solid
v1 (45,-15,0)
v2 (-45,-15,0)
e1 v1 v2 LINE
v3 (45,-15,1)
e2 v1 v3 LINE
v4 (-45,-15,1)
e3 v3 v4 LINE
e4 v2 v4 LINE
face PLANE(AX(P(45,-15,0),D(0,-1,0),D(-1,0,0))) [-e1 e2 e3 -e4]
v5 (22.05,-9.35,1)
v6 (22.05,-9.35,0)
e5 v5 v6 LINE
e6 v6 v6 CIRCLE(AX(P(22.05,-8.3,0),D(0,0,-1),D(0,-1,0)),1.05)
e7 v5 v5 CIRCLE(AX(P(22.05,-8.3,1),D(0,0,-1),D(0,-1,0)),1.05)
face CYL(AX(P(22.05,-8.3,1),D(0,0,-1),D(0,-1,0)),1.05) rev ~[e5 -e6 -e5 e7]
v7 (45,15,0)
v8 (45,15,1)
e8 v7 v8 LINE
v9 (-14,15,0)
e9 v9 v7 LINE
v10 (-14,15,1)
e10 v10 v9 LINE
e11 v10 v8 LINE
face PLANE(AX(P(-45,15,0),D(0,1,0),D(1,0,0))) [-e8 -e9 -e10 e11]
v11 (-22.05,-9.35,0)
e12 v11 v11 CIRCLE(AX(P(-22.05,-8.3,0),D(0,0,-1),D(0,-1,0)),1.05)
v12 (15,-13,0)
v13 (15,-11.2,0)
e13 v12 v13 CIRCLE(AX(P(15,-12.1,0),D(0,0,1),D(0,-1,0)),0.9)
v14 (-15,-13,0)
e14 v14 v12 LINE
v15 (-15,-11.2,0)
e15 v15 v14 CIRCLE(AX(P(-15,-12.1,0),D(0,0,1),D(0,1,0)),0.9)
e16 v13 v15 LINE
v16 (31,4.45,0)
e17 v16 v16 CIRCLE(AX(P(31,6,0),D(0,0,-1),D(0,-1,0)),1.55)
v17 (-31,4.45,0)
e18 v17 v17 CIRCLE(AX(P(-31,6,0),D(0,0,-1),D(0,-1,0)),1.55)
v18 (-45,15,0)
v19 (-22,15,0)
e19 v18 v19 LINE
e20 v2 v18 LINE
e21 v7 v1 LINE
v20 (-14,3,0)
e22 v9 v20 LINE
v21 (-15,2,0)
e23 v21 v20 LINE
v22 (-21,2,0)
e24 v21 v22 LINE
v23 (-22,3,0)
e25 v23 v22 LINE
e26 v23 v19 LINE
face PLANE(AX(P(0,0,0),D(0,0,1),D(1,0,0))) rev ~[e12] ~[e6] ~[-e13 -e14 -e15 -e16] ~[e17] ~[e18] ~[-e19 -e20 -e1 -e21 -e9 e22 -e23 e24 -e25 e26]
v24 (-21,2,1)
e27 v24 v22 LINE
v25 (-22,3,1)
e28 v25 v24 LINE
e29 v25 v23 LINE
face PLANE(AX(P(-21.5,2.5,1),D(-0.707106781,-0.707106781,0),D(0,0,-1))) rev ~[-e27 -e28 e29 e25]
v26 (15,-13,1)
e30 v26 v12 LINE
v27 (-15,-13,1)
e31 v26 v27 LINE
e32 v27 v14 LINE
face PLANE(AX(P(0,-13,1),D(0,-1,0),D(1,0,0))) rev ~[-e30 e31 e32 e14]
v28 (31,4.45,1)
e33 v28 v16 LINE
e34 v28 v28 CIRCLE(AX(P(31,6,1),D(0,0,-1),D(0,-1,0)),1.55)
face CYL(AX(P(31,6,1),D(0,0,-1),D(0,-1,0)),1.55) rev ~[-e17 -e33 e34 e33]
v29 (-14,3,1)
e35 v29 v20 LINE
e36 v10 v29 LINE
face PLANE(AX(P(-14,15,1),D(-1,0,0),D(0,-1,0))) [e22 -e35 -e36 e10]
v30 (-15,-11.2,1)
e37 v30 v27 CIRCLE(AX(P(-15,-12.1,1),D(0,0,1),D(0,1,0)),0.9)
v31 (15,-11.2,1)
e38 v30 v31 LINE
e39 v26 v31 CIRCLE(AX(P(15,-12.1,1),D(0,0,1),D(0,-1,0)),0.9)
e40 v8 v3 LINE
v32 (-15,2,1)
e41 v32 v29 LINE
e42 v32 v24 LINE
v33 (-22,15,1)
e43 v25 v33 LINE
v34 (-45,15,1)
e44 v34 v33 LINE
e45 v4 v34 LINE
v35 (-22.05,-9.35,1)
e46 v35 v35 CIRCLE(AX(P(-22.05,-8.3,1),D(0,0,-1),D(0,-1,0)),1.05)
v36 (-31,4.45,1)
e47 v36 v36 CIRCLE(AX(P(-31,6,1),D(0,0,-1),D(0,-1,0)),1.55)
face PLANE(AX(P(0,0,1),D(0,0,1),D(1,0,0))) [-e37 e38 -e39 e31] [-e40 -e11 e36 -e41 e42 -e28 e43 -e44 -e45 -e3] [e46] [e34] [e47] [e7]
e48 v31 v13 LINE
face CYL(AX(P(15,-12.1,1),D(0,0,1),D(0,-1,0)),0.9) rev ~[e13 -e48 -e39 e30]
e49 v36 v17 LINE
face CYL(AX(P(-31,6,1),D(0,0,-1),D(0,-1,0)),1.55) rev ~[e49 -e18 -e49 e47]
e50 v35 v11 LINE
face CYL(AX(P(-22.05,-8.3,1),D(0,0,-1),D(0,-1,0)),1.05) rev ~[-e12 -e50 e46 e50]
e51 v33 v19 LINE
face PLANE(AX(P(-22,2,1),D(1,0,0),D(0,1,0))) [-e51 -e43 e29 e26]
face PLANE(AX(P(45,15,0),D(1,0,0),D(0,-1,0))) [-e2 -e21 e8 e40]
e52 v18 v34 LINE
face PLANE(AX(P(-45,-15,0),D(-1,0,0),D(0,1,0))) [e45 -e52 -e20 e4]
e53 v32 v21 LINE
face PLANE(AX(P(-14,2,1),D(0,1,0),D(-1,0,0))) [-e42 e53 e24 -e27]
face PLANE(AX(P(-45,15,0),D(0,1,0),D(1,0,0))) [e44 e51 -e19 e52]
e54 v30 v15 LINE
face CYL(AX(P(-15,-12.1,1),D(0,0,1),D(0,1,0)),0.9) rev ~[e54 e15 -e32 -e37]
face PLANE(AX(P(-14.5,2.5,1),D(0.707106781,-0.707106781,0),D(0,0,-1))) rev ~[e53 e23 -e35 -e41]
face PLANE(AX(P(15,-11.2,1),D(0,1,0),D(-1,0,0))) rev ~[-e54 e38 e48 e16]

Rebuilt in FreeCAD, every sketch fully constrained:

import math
import FreeCAD as App
import Part
import Sketcher

V = App.Vector


def edges_at(feature, points):
    """Names of the edges that pass closest to the given points."""
    edges = feature.Shape.Edges
    near = lambda p: min(range(len(edges)), key=lambda i: edges[i].distToShape(Part.Vertex(*p))[0])
    return sorted({f"Edge{near(p) + 1}" for p in points})


def add_polygon(sketch, points):
    """Adds a closed chain of lines whose ends are joined by coincident constraints."""
    first, n = sketch.GeometryCount, len(points)
    for a, b in zip(points, points[1:] + points[:1]):
        sketch.addGeometry(Part.LineSegment(App.Vector(*a, 0), App.Vector(*b, 0)), False)
    for i in range(n):
        sketch.addConstraint(Sketcher.Constraint("Coincident", first + i, 2, first + (i + 1) % n, 1))

doc = App.newDocument("Part")
body = doc.addObject("PartDesign::Body", "Body")

# Sketch on XY plane
sketch1 = doc.addObject("Sketcher::SketchObject", "Sketch")
body.addObject(sketch1)
sketch1.AttachmentSupport = (doc.XY_Plane, [""])
sketch1.MapMode = "FlatFace"
add_polygon(sketch1, [(45, 15), (-45, 15), (-45, -15), (45, -15)])  # lines 0-3
sketch1.addConstraint([
    Sketcher.Constraint("Horizontal", 0),
    Sketcher.Constraint("Vertical", 1),
    Sketcher.Constraint("Horizontal", 2),
    Sketcher.Constraint("Vertical", 3),
    Sketcher.Constraint("Symmetric", 0, 2, 2, 2, -1, 1),
    Sketcher.Constraint("DistanceX", 0, 2, 0, 1, 90.0),
    Sketcher.Constraint("DistanceY", 1, 2, 1, 1, 30.0),
])
pad1 = doc.addObject("PartDesign::Pad", "Pad")
body.addObject(pad1)
pad1.Profile = sketch1
pad1.Length = 1

# Sketch on XY plane
sketch2 = doc.addObject("Sketcher::SketchObject", "Sketch001")
body.addObject(sketch2)
sketch2.AttachmentSupport = (doc.XY_Plane, [""])
sketch2.MapMode = "FlatFace"
sketch2.AttachmentOffset = App.Placement(V(0, 0, 1), App.Rotation())
sketch2.addGeometry([
    Part.ArcOfCircle(Part.Circle(V(15, -12.1, 0), V(0, 0, 1), 0.9), math.radians(-90), math.radians(90)),
    Part.LineSegment(V(15, -11.2, 0), V(-15, -11.2, 0)),
    Part.ArcOfCircle(Part.Circle(V(-15, -12.1, 0), V(0, 0, 1), 0.9), math.radians(90), math.radians(270)),
    Part.LineSegment(V(-15, -13, 0), V(15, -13, 0)),
], False)
sketch2.addConstraint([
    Sketcher.Constraint("Tangent", 0, 2, 1, 1),
    Sketcher.Constraint("Tangent", 1, 2, 2, 1),
    Sketcher.Constraint("Tangent", 2, 2, 3, 1),
    Sketcher.Constraint("Tangent", 3, 2, 0, 1),
    Sketcher.Constraint("Horizontal", 1),
    Sketcher.Constraint("Horizontal", 3),
    Sketcher.Constraint("Radius", 0, 0.9),
    Sketcher.Constraint("DistanceX", 1, 2, 1, 1, 30.0),
    Sketcher.Constraint("DistanceX", -1, 1, 0, 3, 15.0),
    Sketcher.Constraint("DistanceY", 2, 2, -1, 1, 13.0),
])
pocket1 = doc.addObject("PartDesign::Pocket", "Pocket")
body.addObject(pocket1)
pocket1.Profile = sketch2
pocket1.Type = "ThroughAll"

# Sketch on XY plane
sketch3 = doc.addObject("Sketcher::SketchObject", "Sketch002")
body.addObject(sketch3)
sketch3.AttachmentSupport = (doc.XY_Plane, [""])
sketch3.MapMode = "FlatFace"
sketch3.AttachmentOffset = App.Placement(V(0, 0, 1), App.Rotation())
sketch3.addGeometry([
    Part.Circle(V(-31, 6, 0), V(0, 0, 1), 1.6),
    Part.Circle(V(31, 6, 0), V(0, 0, 1), 1.6),
], False)
sketch3.addConstraint([
    Sketcher.Constraint("Equal", 0, 1),
    Sketcher.Constraint("Symmetric", 0, 3, 1, 3, -2),
    Sketcher.Constraint("Diameter", 0, 3.1),
    Sketcher.Constraint("DistanceX", 0, 3, -1, 1, 31.0),
    Sketcher.Constraint("DistanceY", -1, 1, 0, 3, 6.0),
])
doc.recompute()
hole = doc.addObject("PartDesign::Hole", "Hole")
body.addObject(hole)
hole.Profile = sketch3
hole.ThreadType = "None"
hole.Diameter = 3.1
hole.DepthType = "ThroughAll"

# Sketch on XY plane
sketch4 = doc.addObject("Sketcher::SketchObject", "Sketch003")
body.addObject(sketch4)
sketch4.AttachmentSupport = (doc.XY_Plane, [""])
sketch4.MapMode = "FlatFace"
sketch4.AttachmentOffset = App.Placement(V(0, 0, 1), App.Rotation())
sketch4.addGeometry([
    Part.Circle(V(22.1, -8.3, 0), V(0, 0, 1), 1.1),
    Part.Circle(V(-22.1, -8.3, 0), V(0, 0, 1), 1.1),
], False)
sketch4.addConstraint([
    Sketcher.Constraint("Equal", 0, 1),
    Sketcher.Constraint("Symmetric", 0, 3, 1, 3, -2),
    Sketcher.Constraint("Diameter", 0, 2.1),
    Sketcher.Constraint("DistanceY", 0, 3, -1, 1, 8.3),
    Sketcher.Constraint("DistanceX", 1, 3, 0, 3, 44.1),
])
doc.recompute()
hole2 = doc.addObject("PartDesign::Hole", "Hole001")
body.addObject(hole2)
hole2.Profile = sketch4
hole2.ThreadType = "None"
hole2.Diameter = 2.1
hole2.DepthType = "ThroughAll"

# Sketch on XY plane
sketch5 = doc.addObject("Sketcher::SketchObject", "Sketch004")
body.addObject(sketch5)
sketch5.AttachmentSupport = (doc.XY_Plane, [""])
sketch5.MapMode = "FlatFace"
sketch5.AttachmentOffset = App.Placement(V(0, 0, 1), App.Rotation())
add_polygon(sketch5, [(-14, 15), (-22, 15), (-22, 2), (-14, 2)])  # lines 0-3
sketch5.addConstraint([
    Sketcher.Constraint("Horizontal", 0),
    Sketcher.Constraint("Vertical", 1),
    Sketcher.Constraint("Horizontal", 2),
    Sketcher.Constraint("Vertical", 3),
    Sketcher.Constraint("DistanceX", 0, 2, 0, 1, 8.0),
    Sketcher.Constraint("DistanceY", 1, 2, 1, 1, 13.0),
    Sketcher.Constraint("DistanceX", 0, 2, -1, 1, 22.0),
    Sketcher.Constraint("DistanceY", -1, 1, 0, 2, 15.0),
])
pocket2 = doc.addObject("PartDesign::Pocket", "Pocket001")
body.addObject(pocket2)
pocket2.Profile = sketch5
pocket2.Type = "ThroughAll"
doc.recompute()

chamfer = doc.addObject("PartDesign::Chamfer", "Chamfer")
body.addObject(chamfer)
chamfer.Base = (pocket2, edges_at(pocket2, [(-22, 2, 0.5), (-14, 2, 0.5)]))
chamfer.Size = 1

doc.recompute()
